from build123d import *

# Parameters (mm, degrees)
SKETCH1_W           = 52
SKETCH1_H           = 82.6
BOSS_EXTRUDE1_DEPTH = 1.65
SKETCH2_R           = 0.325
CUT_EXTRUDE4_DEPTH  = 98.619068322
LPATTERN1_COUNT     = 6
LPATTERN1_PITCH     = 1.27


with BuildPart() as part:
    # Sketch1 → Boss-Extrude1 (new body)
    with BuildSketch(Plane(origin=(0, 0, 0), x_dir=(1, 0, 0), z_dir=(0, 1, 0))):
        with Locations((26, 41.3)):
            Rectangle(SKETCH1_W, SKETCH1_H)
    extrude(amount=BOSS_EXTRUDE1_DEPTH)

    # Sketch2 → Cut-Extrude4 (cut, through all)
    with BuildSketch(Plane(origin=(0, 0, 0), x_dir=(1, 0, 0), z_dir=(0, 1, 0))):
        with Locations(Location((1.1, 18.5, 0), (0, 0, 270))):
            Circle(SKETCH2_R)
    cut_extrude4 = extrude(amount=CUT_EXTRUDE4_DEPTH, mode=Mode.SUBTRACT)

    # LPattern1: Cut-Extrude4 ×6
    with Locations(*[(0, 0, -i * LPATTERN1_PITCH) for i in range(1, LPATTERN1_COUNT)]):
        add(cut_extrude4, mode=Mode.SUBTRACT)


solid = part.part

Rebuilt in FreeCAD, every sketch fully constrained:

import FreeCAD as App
import Part
import Sketcher

V = App.Vector


def add_polygon(sketch, points):
    """Adds a closed chain of lines whose ends are joined by coincident constraints."""
    first, n = sketch.GeometryCount, len(points)
    for a, b in zip(points, points[1:] + points[:1]):
        sketch.addGeometry(Part.LineSegment(App.Vector(*a, 0), App.Vector(*b, 0)), False)
    for i in range(n):
        sketch.addConstraint(Sketcher.Constraint("Coincident", first + i, 2, first + (i + 1) % n, 1))

doc = App.newDocument("Part")
body = doc.addObject("PartDesign::Body", "Body")

sketch1 = body.newObject("Sketcher::SketchObject", "Sketch")
sketch1.AttachmentSupport = (doc.getObject("XZ_Plane"), [""])
sketch1.MapMode = "FlatFace"
add_polygon(sketch1, [(0, -83), (0, 0), (52, 0), (52, -83)])
sketch1.addConstraint([
    Sketcher.Constraint("Vertical", 0),
    Sketcher.Constraint("Horizontal", 1),
    Sketcher.Constraint("Vertical", 2),
    Sketcher.Constraint("Horizontal", 3),
    Sketcher.Constraint("Coincident", 0, 2, -1, 1),
    Sketcher.Constraint("DistanceX", 1, 1, 1, 2, 52.0),
    Sketcher.Constraint("DistanceY", 0, 1, 0, 2, 82.6),
])
pad1 = body.newObject("PartDesign::Pad", "Pad")
pad1.Profile = sketch1
pad1.Length = 1.65
pad1.Reversed = True

sketch2 = body.newObject("Sketcher::SketchObject", "Sketch001")
sketch2.AttachmentSupport = (doc.getObject("XZ_Plane"), [""])
sketch2.MapMode = "FlatFace"
sketch2.addGeometry(Part.Circle(V(1.1, -18.5, 0), V(0, 0, 1), 0.33), False)
sketch2.addConstraint([
    Sketcher.Constraint("Diameter", 0, 0.65),
    Sketcher.Constraint("DistanceX", -1, 1, 0, 3, 1.1),
    Sketcher.Constraint("DistanceY", 0, 3, -1, 1, 18.5),
])
pocket1 = body.newObject("PartDesign::Pocket", "Pocket")
pocket1.Profile = sketch2
pocket1.Type = "ThroughAll"
doc.recompute()

linearpattern = body.newObject("PartDesign::LinearPattern", "LinearPattern")
linearpattern.Originals = [pocket1]
linearpattern.Direction = (doc.getObject("Z_Axis"), [""])
linearpattern.Mode = "offset"
linearpattern.Offset = 1.27
linearpattern.Occurrences = 6
linearpattern.Reversed = True
body.Tip = linearpattern

doc.recompute()
